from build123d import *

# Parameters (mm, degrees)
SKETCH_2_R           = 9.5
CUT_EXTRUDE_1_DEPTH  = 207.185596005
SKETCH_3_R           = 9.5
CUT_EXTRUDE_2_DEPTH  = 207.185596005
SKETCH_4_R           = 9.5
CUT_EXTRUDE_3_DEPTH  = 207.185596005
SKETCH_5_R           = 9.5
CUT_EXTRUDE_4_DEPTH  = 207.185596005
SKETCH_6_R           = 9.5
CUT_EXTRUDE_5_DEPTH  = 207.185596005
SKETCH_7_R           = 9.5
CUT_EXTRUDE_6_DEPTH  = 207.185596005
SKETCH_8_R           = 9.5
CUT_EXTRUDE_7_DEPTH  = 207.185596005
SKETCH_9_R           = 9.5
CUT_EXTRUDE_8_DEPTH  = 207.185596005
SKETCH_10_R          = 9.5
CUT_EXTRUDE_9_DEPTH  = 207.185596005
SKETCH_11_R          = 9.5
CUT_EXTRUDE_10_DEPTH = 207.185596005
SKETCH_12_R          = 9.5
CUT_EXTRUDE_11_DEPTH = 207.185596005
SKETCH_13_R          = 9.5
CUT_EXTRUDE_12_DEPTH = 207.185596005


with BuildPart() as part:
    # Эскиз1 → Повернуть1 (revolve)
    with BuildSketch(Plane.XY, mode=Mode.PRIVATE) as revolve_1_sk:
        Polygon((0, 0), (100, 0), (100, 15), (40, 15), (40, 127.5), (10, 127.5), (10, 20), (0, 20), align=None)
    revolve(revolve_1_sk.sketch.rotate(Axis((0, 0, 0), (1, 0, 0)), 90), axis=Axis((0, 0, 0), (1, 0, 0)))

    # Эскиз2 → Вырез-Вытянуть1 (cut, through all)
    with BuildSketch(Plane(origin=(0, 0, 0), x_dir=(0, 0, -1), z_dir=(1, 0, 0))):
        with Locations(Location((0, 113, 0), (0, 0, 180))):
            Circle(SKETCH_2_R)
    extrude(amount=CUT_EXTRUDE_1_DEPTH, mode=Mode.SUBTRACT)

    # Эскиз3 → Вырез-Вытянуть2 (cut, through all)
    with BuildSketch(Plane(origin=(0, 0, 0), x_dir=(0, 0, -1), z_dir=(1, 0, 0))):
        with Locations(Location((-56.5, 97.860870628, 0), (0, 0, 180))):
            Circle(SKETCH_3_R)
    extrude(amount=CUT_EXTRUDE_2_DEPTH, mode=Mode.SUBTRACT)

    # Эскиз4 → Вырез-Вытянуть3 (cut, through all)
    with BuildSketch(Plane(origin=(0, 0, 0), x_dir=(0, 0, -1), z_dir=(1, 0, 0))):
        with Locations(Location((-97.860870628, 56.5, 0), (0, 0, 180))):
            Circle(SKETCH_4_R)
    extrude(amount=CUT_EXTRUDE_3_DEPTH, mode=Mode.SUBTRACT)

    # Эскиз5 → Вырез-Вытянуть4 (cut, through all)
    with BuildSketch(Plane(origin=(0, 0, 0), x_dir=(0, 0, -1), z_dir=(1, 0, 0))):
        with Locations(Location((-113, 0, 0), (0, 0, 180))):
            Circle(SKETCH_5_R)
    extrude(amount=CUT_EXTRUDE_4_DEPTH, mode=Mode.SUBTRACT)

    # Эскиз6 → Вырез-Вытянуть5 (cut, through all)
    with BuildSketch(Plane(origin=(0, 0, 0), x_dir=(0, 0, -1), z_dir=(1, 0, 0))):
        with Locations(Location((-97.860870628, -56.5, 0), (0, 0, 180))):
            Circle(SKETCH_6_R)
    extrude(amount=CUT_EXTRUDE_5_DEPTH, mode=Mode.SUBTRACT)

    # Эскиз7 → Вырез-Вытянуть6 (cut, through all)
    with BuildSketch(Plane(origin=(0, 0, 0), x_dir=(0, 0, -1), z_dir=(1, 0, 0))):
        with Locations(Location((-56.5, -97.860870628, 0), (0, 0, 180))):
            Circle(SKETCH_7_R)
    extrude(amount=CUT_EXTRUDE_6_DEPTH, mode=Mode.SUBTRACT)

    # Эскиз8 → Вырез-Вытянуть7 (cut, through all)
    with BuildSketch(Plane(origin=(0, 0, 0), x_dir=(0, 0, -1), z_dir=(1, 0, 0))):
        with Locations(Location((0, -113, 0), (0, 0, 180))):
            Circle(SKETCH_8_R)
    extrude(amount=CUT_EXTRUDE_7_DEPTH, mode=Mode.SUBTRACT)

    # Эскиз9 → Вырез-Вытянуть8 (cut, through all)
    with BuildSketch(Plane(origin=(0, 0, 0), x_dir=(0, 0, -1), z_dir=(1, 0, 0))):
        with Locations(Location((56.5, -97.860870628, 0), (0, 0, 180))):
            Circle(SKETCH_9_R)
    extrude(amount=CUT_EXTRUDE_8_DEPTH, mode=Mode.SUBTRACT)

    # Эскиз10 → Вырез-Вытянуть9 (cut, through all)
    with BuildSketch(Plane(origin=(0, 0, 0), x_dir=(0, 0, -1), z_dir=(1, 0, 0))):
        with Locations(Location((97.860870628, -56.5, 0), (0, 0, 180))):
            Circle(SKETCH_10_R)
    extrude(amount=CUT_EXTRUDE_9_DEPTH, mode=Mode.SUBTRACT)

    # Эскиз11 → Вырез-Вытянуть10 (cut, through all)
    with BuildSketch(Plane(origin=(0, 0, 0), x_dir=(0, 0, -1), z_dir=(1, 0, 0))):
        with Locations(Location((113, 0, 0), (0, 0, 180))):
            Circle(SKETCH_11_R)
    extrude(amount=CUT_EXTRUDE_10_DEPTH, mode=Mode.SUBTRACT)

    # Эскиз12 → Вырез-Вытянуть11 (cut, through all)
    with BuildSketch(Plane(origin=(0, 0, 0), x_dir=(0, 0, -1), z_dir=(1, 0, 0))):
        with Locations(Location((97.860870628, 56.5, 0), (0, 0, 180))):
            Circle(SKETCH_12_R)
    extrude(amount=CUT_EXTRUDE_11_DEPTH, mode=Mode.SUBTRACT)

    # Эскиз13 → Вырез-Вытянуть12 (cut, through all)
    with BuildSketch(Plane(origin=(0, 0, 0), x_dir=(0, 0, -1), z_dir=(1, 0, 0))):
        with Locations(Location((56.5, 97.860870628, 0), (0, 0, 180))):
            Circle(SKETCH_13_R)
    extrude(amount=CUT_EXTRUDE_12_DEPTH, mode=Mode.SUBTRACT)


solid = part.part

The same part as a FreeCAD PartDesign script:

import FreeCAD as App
import Part
import Sketcher
Q = App.Units.Quantity


def add_polygon(sketch, points):
    """Adds a closed chain of lines whose ends are joined by coincident constraints."""
    first, n = sketch.GeometryCount, len(points)
    for a, b in zip(points, points[1:] + points[:1]):
        sketch.addGeometry(Part.LineSegment(App.Vector(*a, 0), App.Vector(*b, 0)), False)
    for i in range(n):
        sketch.addConstraint(Sketcher.Constraint("Coincident", first + i, 2, first + (i + 1) % n, 1))

doc = App.newDocument("Part")
body = doc.addObject("PartDesign::Body", "Body")

# Sketch on XY plane
sketch1 = doc.addObject("Sketcher::SketchObject", "Sketch")
body.addObject(sketch1)
sketch1.AttachmentSupport = (doc.XY_Plane, [""])
sketch1.MapMode = "FlatFace"
add_polygon(sketch1, [(0, 0), (100, 0), (100, 15), (40, 15), (40, 127.5), (10, 127.5), (10, 20), (0, 20)])  # lines 0-7
sketch1.addConstraint([
    Sketcher.Constraint("Horizontal", 0),
    Sketcher.Constraint("Vertical", 1),
    Sketcher.Constraint("Horizontal", 2),
    Sketcher.Constraint("Vertical", 3),
    Sketcher.Constraint("Horizontal", 4),
    Sketcher.Constraint("Vertical", 5),
    Sketcher.Constraint("Horizontal", 6),
    Sketcher.Constraint("Vertical", 7),
    Sketcher.Constraint("Coincident", 7, 2, -1, 1),
    Sketcher.Constraint("DistanceX", 0, 1, 0, 2, Q("100 mm")),
    Sketcher.Constraint("DistanceX", 2, 2, 2, 1, Q("60 mm")),
    Sketcher.Constraint("DistanceX", 4, 2, 4, 1, Q("30 mm")),
    Sketcher.Constraint("DistanceY", 1, 1, 1, 2, Q("15 mm")),
    Sketcher.Constraint("DistanceY", 7, 2, 7, 1, Q("20 mm")),
    Sketcher.Constraint("DistanceY", 3, 1, 3, 2, Q("112.5 mm")),
])
revolution = doc.addObject("PartDesign::Revolution", "Revolution")
body.addObject(revolution)
revolution.Profile = sketch1
revolution.ReferenceAxis = (sketch1, ["H_Axis"])
revolution.Angle = 360

# Sketch on YZ plane
sketch2 = doc.addObject("Sketcher::SketchObject", "Sketch001")
body.addObject(sketch2)
sketch2.AttachmentSupport = (doc.YZ_Plane, [""])
sketch2.MapMode = "FlatFace"
sketch2.addGeometry(Part.Circle(App.Vector(113, 0, 0), App.Vector(0, 0, 1), 9.5), False)
sketch2.addConstraint([
    Sketcher.Constraint("PointOnObject", 0, 3, -1),
    Sketcher.Constraint("Diameter", 0, Q("19 mm")),
    Sketcher.Constraint("DistanceX", -1, 1, 0, 3, Q("113 mm")),
])
pocket1 = doc.addObject("PartDesign::Pocket", "Pocket")
body.addObject(pocket1)
pocket1.Profile = sketch2
pocket1.Type = "ThroughAll"
pocket1.Reversed = True

# Sketch on YZ plane
sketch3 = doc.addObject("Sketcher::SketchObject", "Sketch002")
body.addObject(sketch3)
sketch3.AttachmentSupport = (doc.YZ_Plane, [""])
sketch3.MapMode = "FlatFace"
sketch3.addGeometry(Part.Circle(App.Vector(97.860871, 56.5, 0), App.Vector(0, 0, 1), 9.5), False)
sketch3.addConstraint([
    Sketcher.Constraint("Diameter", 0, Q("19 mm")),
    Sketcher.Constraint("DistanceY", -1, 1, 0, 3, Q("56.5 mm")),
    Sketcher.Constraint("DistanceX", -1, 1, 0, 3, Q("97.860871 mm")),
])
pocket2 = doc.addObject("PartDesign::Pocket", "Pocket001")
body.addObject(pocket2)
pocket2.Profile = sketch3
pocket2.Type = "ThroughAll"
pocket2.Reversed = True

# Sketch on YZ plane
sketch4 = doc.addObject("Sketcher::SketchObject", "Sketch003")
body.addObject(sketch4)
sketch4.AttachmentSupport = (doc.YZ_Plane, [""])
sketch4.MapMode = "FlatFace"
sketch4.addGeometry(Part.Circle(App.Vector(56.5, 97.860871, 0), App.Vector(0, 0, 1), 9.5), False)
sketch4.addConstraint([
    Sketcher.Constraint("Diameter", 0, Q("19 mm")),
    Sketcher.Constraint("DistanceX", -1, 1, 0, 3, Q("56.5 mm")),
    Sketcher.Constraint("DistanceY", -1, 1, 0, 3, Q("97.860871 mm")),
])
pocket3 = doc.addObject("PartDesign::Pocket", "Pocket002")
body.addObject(pocket3)
pocket3.Profile = sketch4
pocket3.Type = "ThroughAll"
pocket3.Reversed = True

# Sketch on YZ plane
sketch5 = doc.addObject("Sketcher::SketchObject", "Sketch004")
body.addObject(sketch5)
sketch5.AttachmentSupport = (doc.YZ_Plane, [""])
sketch5.MapMode = "FlatFace"
sketch5.addGeometry(Part.Circle(App.Vector(0, 113, 0), App.Vector(0, 0, 1), 9.5), False)
sketch5.addConstraint([
    Sketcher.Constraint("PointOnObject", 0, 3, -2),
    Sketcher.Constraint("Diameter", 0, Q("19 mm")),
    Sketcher.Constraint("DistanceY", -1, 1, 0, 3, Q("113 mm")),
])
pocket4 = doc.addObject("PartDesign::Pocket", "Pocket003")
body.addObject(pocket4)
pocket4.Profile = sketch5
pocket4.Type = "ThroughAll"
pocket4.Reversed = True

# Sketch on YZ plane
sketch6 = doc.addObject("Sketcher::SketchObject", "Sketch005")
body.addObject(sketch6)
sketch6.AttachmentSupport = (doc.YZ_Plane, [""])
sketch6.MapMode = "FlatFace"
sketch6.addGeometry(Part.Circle(App.Vector(-56.5, 97.860871, 0), App.Vector(0, 0, 1), 9.5), False)
sketch6.addConstraint([
    Sketcher.Constraint("Diameter", 0, Q("19 mm")),
    Sketcher.Constraint("DistanceX", 0, 3, -1, 1, Q("56.5 mm")),
    Sketcher.Constraint("DistanceY", -1, 1, 0, 3, Q("97.860871 mm")),
])
pocket5 = doc.addObject("PartDesign::Pocket", "Pocket004")
body.addObject(pocket5)
pocket5.Profile = sketch6
pocket5.Type = "ThroughAll"
pocket5.Reversed = True

# Sketch on YZ plane
sketch7 = doc.addObject("Sketcher::SketchObject", "Sketch006")
body.addObject(sketch7)
sketch7.AttachmentSupport = (doc.YZ_Plane, [""])
sketch7.MapMode = "FlatFace"
sketch7.addGeometry(Part.Circle(App.Vector(-97.860871, 56.5, 0), App.Vector(0, 0, 1), 9.5), False)
sketch7.addConstraint([
    Sketcher.Constraint("Diameter", 0, Q("19 mm")),
    Sketcher.Constraint("DistanceY", -1, 1, 0, 3, Q("56.5 mm")),
    Sketcher.Constraint("DistanceX", 0, 3, -1, 1, Q("97.860871 mm")),
])
pocket6 = doc.addObject("PartDesign::Pocket", "Pocket005")
body.addObject(pocket6)
pocket6.Profile = sketch7
pocket6.Type = "ThroughAll"
pocket6.Reversed = True

# Sketch on YZ plane
sketch8 = doc.addObject("Sketcher::SketchObject", "Sketch007")
body.addObject(sketch8)
sketch8.AttachmentSupport = (doc.YZ_Plane, [""])
sketch8.MapMode = "FlatFace"
sketch8.addGeometry(Part.Circle(App.Vector(-113, 0, 0), App.Vector(0, 0, 1), 9.5), False)
sketch8.addConstraint([
    Sketcher.Constraint("PointOnObject", 0, 3, -1),
    Sketcher.Constraint("Diameter", 0, Q("19 mm")),
    Sketcher.Constraint("DistanceX", 0, 3, -1, 1, Q("113 mm")),
])
pocket7 = doc.addObject("PartDesign::Pocket", "Pocket006")
body.addObject(pocket7)
pocket7.Profile = sketch8
pocket7.Type = "ThroughAll"
pocket7.Reversed = True

# Sketch on YZ plane
sketch9 = doc.addObject("Sketcher::SketchObject", "Sketch008")
body.addObject(sketch9)
sketch9.AttachmentSupport = (doc.YZ_Plane, [""])
sketch9.MapMode = "FlatFace"
sketch9.addGeometry(Part.Circle(App.Vector(-97.860871, -56.5, 0), App.Vector(0, 0, 1), 9.5), False)
sketch9.addConstraint([
    Sketcher.Constraint("Diameter", 0, Q("19 mm")),
    Sketcher.Constraint("DistanceY", 0, 3, -1, 1, Q("56.5 mm")),
    Sketcher.Constraint("DistanceX", 0, 3, -1, 1, Q("97.860871 mm")),
])
pocket8 = doc.addObject("PartDesign::Pocket", "Pocket007")
body.addObject(pocket8)
pocket8.Profile = sketch9
pocket8.Type = "ThroughAll"
pocket8.Reversed = True

# Sketch on YZ plane
sketch10 = doc.addObject("Sketcher::SketchObject", "Sketch009")
body.addObject(sketch10)
sketch10.AttachmentSupport = (doc.YZ_Plane, [""])
sketch10.MapMode = "FlatFace"
sketch10.addGeometry(Part.Circle(App.Vector(-56.5, -97.860871, 0), App.Vector(0, 0, 1), 9.5), False)
sketch10.addConstraint([
    Sketcher.Constraint("Diameter", 0, Q("19 mm")),
    Sketcher.Constraint("DistanceX", 0, 3, -1, 1, Q("56.5 mm")),
    Sketcher.Constraint("DistanceY", 0, 3, -1, 1, Q("97.860871 mm")),
])
pocket9 = doc.addObject("PartDesign::Pocket", "Pocket008")
body.addObject(pocket9)
pocket9.Profile = sketch10
pocket9.Type = "ThroughAll"
pocket9.Reversed = True

# Sketch on YZ plane
sketch11 = doc.addObject("Sketcher::SketchObject", "Sketch010")
body.addObject(sketch11)
sketch11.AttachmentSupport = (doc.YZ_Plane, [""])
sketch11.MapMode = "FlatFace"
sketch11.addGeometry(Part.Circle(App.Vector(0, -113, 0), App.Vector(0, 0, 1), 9.5), False)
sketch11.addConstraint([
    Sketcher.Constraint("PointOnObject", 0, 3, -2),
    Sketcher.Constraint("Diameter", 0, Q("19 mm")),
    Sketcher.Constraint("DistanceY", 0, 3, -1, 1, Q("113 mm")),
])
pocket10 = doc.addObject("PartDesign::Pocket", "Pocket009")
body.addObject(pocket10)
pocket10.Profile = sketch11
pocket10.Type = "ThroughAll"
pocket10.Reversed = True

# Sketch on YZ plane
sketch12 = doc.addObject("Sketcher::SketchObject", "Sketch011")
body.addObject(sketch12)
sketch12.AttachmentSupport = (doc.YZ_Plane, [""])
sketch12.MapMode = "FlatFace"
sketch12.addGeometry(Part.Circle(App.Vector(56.5, -97.860871, 0), App.Vector(0, 0, 1), 9.5), False)
sketch12.addConstraint([
    Sketcher.Constraint("Diameter", 0, Q("19 mm")),
    Sketcher.Constraint("DistanceX", -1, 1, 0, 3, Q("56.5 mm")),
    Sketcher.Constraint("DistanceY", 0, 3, -1, 1, Q("97.860871 mm")),
])
pocket11 = doc.addObject("PartDesign::Pocket", "Pocket010")
body.addObject(pocket11)
pocket11.Profile = sketch12
pocket11.Type = "ThroughAll"
pocket11.Reversed = True

# Sketch on YZ plane
sketch13 = doc.addObject("Sketcher::SketchObject", "Sketch012")
body.addObject(sketch13)
sketch13.AttachmentSupport = (doc.YZ_Plane, [""])
sketch13.MapMode = "FlatFace"
sketch13.addGeometry(Part.Circle(App.Vector(97.860871, -56.5, 0), App.Vector(0, 0, 1), 9.5), False)
sketch13.addConstraint([
    Sketcher.Constraint("Diameter", 0, Q("19 mm")),
    Sketcher.Constraint("DistanceY", 0, 3, -1, 1, Q("56.5 mm")),
    Sketcher.Constraint("DistanceX", -1, 1, 0, 3, Q("97.860871 mm")),
])
pocket12 = doc.addObject("PartDesign::Pocket", "Pocket011")
body.addObject(pocket12)
pocket12.Profile = sketch13
pocket12.Type = "ThroughAll"
pocket12.Reversed = True

doc.recompute()
